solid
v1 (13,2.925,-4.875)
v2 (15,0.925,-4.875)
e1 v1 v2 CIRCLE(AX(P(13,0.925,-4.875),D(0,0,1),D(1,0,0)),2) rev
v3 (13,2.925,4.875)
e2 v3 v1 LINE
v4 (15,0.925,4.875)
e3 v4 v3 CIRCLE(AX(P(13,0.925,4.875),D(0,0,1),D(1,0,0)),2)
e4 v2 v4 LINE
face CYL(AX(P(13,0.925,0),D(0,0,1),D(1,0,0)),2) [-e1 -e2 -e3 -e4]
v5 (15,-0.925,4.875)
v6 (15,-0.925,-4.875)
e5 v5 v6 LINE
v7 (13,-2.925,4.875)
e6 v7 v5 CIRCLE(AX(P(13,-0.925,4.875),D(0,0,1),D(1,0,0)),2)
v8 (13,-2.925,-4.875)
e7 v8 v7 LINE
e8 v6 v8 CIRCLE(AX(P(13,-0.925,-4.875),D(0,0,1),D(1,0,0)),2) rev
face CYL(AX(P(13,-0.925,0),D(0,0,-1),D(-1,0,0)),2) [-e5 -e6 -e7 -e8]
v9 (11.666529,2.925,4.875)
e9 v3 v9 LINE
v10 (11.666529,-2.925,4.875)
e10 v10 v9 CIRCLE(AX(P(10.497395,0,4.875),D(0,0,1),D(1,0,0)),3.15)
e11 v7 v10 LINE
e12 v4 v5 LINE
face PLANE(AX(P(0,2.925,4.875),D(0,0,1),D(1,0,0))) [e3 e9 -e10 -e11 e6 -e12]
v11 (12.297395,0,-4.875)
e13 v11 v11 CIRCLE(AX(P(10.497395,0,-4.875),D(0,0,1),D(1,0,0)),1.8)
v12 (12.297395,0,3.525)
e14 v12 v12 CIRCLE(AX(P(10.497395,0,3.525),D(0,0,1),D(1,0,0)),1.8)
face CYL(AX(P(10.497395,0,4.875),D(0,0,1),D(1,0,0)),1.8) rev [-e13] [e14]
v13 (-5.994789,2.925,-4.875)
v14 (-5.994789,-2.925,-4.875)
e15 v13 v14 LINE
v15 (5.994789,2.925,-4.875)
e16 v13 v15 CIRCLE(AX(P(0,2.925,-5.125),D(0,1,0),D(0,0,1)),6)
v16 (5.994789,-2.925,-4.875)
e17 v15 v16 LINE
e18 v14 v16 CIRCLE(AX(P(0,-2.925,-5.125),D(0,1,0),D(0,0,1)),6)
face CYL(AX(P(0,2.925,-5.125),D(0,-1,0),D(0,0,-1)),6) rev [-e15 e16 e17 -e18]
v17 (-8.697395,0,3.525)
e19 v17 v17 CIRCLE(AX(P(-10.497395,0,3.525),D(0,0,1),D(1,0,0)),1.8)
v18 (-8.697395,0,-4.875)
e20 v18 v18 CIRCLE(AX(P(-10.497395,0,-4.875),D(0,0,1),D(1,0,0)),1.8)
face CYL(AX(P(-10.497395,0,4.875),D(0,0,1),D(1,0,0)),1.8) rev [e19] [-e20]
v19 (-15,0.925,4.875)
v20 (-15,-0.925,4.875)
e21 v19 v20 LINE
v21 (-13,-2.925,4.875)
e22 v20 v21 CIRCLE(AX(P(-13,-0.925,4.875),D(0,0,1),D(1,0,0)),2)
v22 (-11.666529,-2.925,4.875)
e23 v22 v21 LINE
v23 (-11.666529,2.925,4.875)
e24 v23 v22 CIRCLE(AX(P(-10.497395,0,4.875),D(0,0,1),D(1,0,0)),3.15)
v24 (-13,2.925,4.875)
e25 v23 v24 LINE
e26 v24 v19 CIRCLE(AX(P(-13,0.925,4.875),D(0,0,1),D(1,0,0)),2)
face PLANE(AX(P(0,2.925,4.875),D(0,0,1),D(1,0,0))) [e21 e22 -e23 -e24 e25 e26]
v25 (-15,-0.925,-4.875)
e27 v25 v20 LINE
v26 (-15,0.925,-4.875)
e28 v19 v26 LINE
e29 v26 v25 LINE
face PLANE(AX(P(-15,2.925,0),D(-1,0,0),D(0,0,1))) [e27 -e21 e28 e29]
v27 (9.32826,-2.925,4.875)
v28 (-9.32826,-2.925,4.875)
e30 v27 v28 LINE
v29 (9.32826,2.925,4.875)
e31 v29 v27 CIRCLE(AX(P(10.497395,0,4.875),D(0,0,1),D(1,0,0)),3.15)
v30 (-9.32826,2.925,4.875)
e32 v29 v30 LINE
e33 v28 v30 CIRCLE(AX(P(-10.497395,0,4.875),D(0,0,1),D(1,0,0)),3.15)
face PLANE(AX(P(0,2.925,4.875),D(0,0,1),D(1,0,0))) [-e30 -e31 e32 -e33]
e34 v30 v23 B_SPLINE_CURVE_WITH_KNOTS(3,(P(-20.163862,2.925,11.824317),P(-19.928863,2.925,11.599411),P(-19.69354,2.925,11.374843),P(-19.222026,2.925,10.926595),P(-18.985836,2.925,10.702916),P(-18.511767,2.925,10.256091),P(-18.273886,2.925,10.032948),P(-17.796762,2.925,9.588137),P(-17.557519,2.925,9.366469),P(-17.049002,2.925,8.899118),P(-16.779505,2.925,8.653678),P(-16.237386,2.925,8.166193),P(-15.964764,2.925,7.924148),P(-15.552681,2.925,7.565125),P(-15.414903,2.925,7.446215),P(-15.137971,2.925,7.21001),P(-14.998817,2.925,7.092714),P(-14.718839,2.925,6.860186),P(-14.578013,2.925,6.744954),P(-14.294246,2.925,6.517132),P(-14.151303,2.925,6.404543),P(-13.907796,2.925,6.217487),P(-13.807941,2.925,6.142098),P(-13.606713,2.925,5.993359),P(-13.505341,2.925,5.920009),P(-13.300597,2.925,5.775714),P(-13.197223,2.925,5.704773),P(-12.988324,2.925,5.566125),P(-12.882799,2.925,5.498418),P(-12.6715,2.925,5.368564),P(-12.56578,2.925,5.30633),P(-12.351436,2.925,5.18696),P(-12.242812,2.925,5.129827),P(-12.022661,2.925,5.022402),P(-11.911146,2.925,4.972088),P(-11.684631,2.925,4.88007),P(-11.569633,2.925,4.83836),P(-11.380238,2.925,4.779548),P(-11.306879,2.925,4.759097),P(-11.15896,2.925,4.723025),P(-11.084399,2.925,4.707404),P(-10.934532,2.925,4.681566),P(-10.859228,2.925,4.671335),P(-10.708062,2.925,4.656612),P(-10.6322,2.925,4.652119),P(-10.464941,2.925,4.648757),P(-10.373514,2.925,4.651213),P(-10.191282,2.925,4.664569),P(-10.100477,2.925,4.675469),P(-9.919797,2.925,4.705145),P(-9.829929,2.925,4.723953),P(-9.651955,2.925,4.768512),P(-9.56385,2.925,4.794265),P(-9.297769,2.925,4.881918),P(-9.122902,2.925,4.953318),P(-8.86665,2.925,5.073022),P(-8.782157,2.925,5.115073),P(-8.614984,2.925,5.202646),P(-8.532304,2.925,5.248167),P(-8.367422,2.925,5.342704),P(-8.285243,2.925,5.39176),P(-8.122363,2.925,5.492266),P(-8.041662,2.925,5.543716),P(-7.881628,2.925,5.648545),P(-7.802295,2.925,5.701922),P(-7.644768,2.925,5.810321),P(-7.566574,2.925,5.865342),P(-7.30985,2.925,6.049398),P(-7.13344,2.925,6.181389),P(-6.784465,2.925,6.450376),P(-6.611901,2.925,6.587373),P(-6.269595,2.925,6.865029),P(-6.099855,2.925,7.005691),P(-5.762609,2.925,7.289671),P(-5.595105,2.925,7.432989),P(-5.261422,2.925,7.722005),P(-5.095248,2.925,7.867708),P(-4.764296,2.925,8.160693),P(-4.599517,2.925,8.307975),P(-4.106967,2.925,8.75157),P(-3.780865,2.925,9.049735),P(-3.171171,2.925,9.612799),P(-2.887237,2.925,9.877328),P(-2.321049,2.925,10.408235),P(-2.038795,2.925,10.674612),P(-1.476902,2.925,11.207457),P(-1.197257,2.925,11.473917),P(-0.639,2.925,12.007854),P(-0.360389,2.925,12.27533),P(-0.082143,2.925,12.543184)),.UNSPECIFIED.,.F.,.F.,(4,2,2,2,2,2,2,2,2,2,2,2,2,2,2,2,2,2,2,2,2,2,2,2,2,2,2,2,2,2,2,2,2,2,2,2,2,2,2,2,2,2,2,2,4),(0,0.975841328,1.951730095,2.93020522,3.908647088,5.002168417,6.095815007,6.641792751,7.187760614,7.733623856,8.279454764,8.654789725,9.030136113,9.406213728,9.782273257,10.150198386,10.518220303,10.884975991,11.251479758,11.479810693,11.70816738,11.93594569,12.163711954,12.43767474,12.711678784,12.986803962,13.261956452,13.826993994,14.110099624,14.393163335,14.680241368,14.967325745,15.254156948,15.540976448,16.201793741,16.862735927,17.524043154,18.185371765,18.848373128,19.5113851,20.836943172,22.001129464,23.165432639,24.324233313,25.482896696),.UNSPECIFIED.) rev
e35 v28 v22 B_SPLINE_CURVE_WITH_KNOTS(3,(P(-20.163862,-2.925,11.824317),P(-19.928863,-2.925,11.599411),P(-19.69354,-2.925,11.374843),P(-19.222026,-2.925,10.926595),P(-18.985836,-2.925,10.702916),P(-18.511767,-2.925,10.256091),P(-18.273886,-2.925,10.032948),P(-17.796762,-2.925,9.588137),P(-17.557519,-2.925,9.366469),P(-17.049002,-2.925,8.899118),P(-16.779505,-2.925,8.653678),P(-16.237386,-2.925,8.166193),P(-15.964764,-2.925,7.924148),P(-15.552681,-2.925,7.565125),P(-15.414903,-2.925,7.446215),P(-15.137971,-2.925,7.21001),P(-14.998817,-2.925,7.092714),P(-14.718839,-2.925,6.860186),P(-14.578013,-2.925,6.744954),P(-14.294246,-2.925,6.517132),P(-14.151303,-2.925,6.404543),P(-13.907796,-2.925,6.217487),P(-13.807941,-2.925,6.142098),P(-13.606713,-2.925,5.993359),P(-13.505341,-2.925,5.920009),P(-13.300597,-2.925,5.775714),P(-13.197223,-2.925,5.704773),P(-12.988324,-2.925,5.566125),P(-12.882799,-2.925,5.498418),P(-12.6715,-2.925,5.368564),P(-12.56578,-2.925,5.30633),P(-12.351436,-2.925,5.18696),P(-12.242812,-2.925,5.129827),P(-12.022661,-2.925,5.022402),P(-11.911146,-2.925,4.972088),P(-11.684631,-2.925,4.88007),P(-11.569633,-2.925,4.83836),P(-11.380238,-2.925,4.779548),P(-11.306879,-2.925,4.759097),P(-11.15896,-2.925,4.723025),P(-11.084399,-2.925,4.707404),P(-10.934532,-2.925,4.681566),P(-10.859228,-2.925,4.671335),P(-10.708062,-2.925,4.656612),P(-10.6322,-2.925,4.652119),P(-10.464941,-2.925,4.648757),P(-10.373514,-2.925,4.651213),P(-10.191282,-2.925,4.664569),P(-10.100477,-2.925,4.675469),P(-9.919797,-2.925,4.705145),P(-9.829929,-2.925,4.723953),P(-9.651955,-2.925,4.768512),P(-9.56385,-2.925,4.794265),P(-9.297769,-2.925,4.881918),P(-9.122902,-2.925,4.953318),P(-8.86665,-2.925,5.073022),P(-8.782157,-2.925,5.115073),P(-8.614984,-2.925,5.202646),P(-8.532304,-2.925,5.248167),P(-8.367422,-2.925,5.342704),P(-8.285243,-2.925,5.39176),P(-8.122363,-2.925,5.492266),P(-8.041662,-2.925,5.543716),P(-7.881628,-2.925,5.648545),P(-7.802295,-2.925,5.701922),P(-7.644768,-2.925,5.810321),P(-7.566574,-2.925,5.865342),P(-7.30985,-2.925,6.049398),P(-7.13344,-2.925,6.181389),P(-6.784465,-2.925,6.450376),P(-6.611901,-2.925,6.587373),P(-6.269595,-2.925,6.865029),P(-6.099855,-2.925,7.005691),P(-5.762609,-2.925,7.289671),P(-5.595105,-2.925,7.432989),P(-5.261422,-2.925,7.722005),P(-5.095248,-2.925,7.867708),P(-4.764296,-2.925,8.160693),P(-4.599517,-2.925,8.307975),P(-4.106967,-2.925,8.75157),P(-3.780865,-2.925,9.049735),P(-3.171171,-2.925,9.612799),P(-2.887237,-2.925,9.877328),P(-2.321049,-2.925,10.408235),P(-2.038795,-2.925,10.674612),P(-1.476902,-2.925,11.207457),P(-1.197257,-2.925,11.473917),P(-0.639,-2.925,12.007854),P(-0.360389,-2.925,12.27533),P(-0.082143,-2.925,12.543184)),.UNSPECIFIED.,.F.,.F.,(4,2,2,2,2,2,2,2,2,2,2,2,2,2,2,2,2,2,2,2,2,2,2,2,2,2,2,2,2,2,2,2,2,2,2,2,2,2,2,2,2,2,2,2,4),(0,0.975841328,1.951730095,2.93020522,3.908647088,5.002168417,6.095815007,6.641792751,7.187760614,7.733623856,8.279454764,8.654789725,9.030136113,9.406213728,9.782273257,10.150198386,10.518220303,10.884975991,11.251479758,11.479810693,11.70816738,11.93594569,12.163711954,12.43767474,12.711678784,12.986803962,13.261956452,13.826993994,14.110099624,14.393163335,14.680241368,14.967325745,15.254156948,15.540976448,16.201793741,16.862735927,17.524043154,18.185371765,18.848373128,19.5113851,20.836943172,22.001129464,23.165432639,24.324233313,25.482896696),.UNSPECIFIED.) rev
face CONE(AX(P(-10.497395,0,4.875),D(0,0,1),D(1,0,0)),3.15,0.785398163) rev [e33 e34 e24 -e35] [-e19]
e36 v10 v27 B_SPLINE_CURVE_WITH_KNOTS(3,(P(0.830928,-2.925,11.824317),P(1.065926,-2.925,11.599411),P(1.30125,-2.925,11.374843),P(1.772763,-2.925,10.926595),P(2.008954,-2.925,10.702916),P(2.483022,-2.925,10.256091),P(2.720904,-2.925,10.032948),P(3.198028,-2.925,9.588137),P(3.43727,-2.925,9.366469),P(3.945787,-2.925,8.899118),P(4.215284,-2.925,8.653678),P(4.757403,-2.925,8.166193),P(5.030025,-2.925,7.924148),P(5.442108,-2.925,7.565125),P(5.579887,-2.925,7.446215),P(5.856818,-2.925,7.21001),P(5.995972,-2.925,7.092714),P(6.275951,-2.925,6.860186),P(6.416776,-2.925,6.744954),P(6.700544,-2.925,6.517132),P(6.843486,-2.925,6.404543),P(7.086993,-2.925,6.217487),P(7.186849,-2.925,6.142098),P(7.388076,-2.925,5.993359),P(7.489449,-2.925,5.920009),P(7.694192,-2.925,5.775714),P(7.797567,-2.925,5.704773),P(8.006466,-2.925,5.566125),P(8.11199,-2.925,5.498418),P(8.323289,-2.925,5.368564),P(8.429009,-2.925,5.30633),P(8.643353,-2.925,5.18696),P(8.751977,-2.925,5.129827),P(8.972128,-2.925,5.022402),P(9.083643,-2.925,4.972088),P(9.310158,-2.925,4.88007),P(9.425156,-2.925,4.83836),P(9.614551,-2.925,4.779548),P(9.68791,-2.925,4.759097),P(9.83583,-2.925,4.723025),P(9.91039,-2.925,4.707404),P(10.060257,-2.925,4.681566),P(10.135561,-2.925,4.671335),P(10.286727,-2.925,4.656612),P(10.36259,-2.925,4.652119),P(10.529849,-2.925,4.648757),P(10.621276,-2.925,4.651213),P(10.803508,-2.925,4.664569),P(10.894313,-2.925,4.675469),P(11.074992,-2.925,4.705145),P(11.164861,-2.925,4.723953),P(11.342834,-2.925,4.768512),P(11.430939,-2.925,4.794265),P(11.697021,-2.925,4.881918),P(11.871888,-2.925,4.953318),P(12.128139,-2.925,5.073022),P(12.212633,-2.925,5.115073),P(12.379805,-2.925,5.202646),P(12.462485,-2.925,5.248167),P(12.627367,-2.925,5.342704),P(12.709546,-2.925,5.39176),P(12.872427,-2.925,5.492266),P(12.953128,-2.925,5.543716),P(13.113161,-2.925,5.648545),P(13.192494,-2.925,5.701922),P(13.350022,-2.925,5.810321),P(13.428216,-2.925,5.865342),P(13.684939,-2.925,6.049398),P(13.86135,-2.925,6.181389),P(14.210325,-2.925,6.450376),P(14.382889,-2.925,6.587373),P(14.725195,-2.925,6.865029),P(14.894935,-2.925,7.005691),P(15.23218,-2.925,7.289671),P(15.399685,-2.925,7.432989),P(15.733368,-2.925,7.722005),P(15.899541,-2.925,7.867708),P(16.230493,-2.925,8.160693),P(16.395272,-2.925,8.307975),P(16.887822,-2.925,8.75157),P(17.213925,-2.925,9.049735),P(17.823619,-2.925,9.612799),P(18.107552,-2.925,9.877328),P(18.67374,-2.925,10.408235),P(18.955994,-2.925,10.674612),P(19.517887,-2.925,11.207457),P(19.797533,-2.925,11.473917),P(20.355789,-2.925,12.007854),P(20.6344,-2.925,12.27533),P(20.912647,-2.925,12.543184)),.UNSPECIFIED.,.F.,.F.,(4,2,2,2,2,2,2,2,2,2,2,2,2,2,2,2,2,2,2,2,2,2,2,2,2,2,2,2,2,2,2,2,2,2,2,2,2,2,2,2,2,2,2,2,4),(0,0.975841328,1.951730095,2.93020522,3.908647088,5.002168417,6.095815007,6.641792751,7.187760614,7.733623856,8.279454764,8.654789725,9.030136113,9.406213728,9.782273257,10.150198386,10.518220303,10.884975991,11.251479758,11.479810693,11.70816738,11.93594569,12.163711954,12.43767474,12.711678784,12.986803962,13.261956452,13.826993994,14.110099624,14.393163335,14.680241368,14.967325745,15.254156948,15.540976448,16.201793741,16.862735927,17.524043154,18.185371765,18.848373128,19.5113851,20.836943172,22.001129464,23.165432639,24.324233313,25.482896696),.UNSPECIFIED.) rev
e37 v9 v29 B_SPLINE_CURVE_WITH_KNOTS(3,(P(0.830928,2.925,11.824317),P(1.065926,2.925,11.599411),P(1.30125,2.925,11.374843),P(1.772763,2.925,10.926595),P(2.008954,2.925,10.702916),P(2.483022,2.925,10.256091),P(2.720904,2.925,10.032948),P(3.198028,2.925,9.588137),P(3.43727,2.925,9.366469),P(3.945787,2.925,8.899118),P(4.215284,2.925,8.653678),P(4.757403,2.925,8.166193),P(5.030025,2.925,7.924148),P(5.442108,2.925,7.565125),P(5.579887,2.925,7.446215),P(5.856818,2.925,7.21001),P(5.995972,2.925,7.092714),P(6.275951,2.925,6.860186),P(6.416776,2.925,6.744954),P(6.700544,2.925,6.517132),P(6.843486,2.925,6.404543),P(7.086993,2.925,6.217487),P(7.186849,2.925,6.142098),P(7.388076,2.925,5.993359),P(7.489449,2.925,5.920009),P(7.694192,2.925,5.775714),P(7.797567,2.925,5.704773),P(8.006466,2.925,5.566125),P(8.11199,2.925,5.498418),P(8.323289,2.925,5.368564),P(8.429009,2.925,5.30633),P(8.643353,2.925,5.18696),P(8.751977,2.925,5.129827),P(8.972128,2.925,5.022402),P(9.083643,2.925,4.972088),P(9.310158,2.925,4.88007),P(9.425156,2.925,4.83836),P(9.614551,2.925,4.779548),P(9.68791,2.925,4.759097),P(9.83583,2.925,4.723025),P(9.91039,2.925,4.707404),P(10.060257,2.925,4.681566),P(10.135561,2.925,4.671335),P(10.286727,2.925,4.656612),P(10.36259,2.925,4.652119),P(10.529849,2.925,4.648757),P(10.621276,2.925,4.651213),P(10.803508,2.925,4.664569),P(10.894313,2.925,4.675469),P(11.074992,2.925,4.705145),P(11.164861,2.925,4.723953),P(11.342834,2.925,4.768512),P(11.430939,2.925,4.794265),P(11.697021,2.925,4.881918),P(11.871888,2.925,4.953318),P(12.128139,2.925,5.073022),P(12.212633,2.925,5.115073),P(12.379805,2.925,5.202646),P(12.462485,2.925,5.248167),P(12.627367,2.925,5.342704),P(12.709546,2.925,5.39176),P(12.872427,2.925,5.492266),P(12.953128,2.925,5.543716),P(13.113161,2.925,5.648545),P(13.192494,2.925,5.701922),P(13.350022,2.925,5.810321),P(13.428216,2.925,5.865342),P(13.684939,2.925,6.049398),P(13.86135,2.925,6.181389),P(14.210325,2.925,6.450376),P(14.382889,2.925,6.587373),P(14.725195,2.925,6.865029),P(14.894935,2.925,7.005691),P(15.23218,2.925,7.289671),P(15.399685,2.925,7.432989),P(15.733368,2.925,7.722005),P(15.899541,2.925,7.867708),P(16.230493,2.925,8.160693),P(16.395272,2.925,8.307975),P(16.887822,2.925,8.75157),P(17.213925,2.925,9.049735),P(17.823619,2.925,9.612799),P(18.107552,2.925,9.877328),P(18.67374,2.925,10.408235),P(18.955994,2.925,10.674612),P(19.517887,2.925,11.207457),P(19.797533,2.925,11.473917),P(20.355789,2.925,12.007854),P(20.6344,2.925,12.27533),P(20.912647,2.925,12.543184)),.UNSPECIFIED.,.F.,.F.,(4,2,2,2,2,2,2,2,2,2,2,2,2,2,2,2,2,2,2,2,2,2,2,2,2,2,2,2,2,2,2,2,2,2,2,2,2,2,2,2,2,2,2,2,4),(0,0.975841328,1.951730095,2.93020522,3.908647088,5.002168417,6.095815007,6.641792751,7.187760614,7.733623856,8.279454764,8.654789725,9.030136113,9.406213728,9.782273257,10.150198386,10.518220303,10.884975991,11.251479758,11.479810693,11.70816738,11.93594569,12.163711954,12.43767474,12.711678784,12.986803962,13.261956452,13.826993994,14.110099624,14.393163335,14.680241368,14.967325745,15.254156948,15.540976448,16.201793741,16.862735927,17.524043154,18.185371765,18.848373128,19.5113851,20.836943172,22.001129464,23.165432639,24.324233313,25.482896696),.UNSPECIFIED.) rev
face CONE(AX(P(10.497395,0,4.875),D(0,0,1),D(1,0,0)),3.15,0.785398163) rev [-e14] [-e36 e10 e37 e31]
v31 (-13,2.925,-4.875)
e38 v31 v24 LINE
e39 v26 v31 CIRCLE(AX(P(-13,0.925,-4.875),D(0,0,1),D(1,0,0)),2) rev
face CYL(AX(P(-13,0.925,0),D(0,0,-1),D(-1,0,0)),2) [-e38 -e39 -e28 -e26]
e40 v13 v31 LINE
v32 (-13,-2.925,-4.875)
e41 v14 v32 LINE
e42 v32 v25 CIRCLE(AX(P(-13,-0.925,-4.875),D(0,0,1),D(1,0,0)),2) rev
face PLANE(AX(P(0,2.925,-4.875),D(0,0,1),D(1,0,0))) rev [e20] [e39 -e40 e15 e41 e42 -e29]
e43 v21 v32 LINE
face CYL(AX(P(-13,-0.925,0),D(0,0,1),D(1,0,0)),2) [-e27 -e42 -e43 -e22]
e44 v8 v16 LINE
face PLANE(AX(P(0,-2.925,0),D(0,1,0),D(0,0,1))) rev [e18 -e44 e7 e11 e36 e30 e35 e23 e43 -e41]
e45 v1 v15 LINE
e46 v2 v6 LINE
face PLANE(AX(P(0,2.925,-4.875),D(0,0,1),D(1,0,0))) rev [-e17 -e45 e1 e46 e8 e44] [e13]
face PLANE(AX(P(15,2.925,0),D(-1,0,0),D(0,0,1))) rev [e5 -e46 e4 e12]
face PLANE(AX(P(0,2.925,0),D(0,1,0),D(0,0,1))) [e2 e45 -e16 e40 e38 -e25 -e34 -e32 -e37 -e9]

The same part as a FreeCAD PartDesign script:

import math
import FreeCAD as App
import Part
import Sketcher

V = App.Vector
Q = App.Units.Quantity


def edges_at(feature, points):
    """Names of the edges that pass closest to the given points."""
    edges = feature.Shape.Edges
    near = lambda p: min(range(len(edges)), key=lambda i: edges[i].distToShape(Part.Vertex(*p))[0])
    return sorted({f"Edge{near(p) + 1}" for p in points})

doc = App.newDocument("Part")
body = doc.addObject("PartDesign::Body", "Body")

sketch1 = doc.addObject("Sketcher::SketchObject", "Sketch")
body.addObject(sketch1)
sketch1.AttachmentSupport = (doc.XZ_Plane, [""])
sketch1.MapMode = "FlatFace"
sketch1.addGeometry(Part.LineSegment(V(-15, 5, 0), V(15, 5, 0)), False)
sketch1.addGeometry(Part.LineSegment(V(15, 5, 0), V(15, -5, 0)), False)
sketch1.addGeometry(Part.LineSegment(V(15, -5, 0), V(6, -5, 0)), False)
sketch1.addGeometry(Part.ArcOfCircle(Part.Circle(V(0, -5, 0), V(0, 0, 1), 6), math.radians(2), math.radians(178)), False)
sketch1.addGeometry(Part.LineSegment(V(-6, -5, 0), V(-15, -5, 0)), False)
sketch1.addGeometry(Part.LineSegment(V(-15, -5, 0), V(-15, 5, 0)), False)
sketch1.addConstraint(Sketcher.Constraint("Coincident", 0, 2, 1, 1))
sketch1.addConstraint(Sketcher.Constraint("Coincident", 1, 2, 2, 1))
sketch1.addConstraint(Sketcher.Constraint("Coincident", 2, 2, 3, 1))
sketch1.addConstraint(Sketcher.Constraint("Coincident", 3, 2, 4, 1))
sketch1.addConstraint(Sketcher.Constraint("Coincident", 4, 2, 5, 1))
sketch1.addConstraint(Sketcher.Constraint("Coincident", 5, 2, 0, 1))
sketch1.addConstraint(Sketcher.Constraint("Horizontal", 0))
sketch1.addConstraint(Sketcher.Constraint("Vertical", 1))
sketch1.addConstraint(Sketcher.Constraint("Horizontal", 2))
sketch1.addConstraint(Sketcher.Constraint("Horizontal", 4))
sketch1.addConstraint(Sketcher.Constraint("Vertical", 5))
sketch1.addConstraint(Sketcher.Constraint("Symmetric", 0, 2, 4, 2, -1, 1))
sketch1.addConstraint(Sketcher.Constraint("Symmetric", 2, 2, 3, 2, -2))
sketch1.addConstraint(Sketcher.Constraint("Radius", 3, Q("6 mm")))
sketch1.addConstraint(Sketcher.Constraint("DistanceX", 0, 1, 0, 2, Q("30 mm")))
sketch1.addConstraint(Sketcher.Constraint("DistanceY", 3, 3, 0, 2, Q("10 mm")))
sketch1.addConstraint(Sketcher.Constraint("DistanceY", 1, 2, 1, 1, Q("9.75 mm")))
pad1 = doc.addObject("PartDesign::Pad", "Pad")
body.addObject(pad1)
pad1.Profile = sketch1
pad1.Length = 5.85
pad1.Midplane = True

sketch2 = doc.addObject("Sketcher::SketchObject", "Sketch001")
body.addObject(sketch2)
sketch2.AttachmentSupport = (doc.XY_Plane, [""])
sketch2.MapMode = "FlatFace"
sketch2.AttachmentOffset = App.Placement(V(0, 0, 4.875), App.Rotation())
sketch2.addGeometry(Part.Circle(V(-10.5, 0, 0), V(0, 0, 1), 1.8), False)
sketch2.addGeometry(Part.Circle(V(10.5, 0, 0), V(0, 0, 1), 1.8), False)
sketch2.addConstraint(Sketcher.Constraint("Equal", 0, 1))
sketch2.addConstraint(Sketcher.Constraint("Symmetric", 0, 3, 1, 3, -1, 1))
sketch2.addConstraint(Sketcher.Constraint("PointOnObject", 0, 3, -1))
sketch2.addConstraint(Sketcher.Constraint("Diameter", 0, Q("3.6 mm")))
sketch2.addConstraint(Sketcher.Constraint("DistanceX", 0, 3, 1, 3, Q("20.994789 mm")))
doc.recompute()
hole = doc.addObject("PartDesign::Hole", "Hole")
body.addObject(hole)
hole.Profile = sketch2
hole.ThreadType = "None"
hole.Diameter = 3.6
hole.DepthType = "ThroughAll"
hole.HoleCutType = "Countersink"
hole.HoleCutDiameter = 6.3
hole.HoleCutCountersinkAngle = 90
doc.recompute()

fillet = doc.addObject("PartDesign::Fillet", "Fillet")
body.addObject(fillet)
fillet.Base = (hole, edges_at(hole, [
    (-15, 2.925, 0),
    (15, 2.925, 0),
    (15, -2.925, 0),
    (-15, -2.925, 0),
]))
fillet.Radius = 2

doc.recompute()
